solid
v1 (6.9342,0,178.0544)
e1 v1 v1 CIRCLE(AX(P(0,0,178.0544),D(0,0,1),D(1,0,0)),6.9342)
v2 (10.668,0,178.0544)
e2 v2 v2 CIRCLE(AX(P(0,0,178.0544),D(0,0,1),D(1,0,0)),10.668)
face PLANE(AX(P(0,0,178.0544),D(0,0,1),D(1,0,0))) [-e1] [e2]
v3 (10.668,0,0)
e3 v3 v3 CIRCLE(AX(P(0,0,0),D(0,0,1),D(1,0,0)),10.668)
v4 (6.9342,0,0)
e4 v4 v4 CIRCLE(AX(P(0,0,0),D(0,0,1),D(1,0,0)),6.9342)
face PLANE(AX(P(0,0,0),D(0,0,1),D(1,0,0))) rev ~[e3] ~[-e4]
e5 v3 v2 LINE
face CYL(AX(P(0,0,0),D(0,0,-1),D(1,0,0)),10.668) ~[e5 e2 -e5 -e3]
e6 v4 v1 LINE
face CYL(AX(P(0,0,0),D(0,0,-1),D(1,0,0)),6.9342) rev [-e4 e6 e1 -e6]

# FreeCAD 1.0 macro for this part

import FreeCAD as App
import Part
import Sketcher
Q = App.Units.Quantity

doc = App.newDocument("Part")
body = doc.addObject("PartDesign::Body", "Body")

sketch1 = body.newObject("Sketcher::SketchObject", "Sketch")
sketch1.AttachmentSupport = (doc.getObject("XY_Plane"), [""])
sketch1.MapMode = "FlatFace"
sketch1.addGeometry(Part.Circle(App.Vector(0, 0, 0), App.Vector(0, 0, 1), 11), False)
sketch1.addGeometry(Part.Circle(App.Vector(0, 0, 0), App.Vector(0, 0, 1), 7), False)
sketch1.addConstraint(Sketcher.Constraint("Coincident", 0, 3, -1, 1))
sketch1.addConstraint(Sketcher.Constraint("Coincident", 1, 3, -1, 1))
sketch1.addConstraint(Sketcher.Constraint("Diameter", 0, Q("0.84 in")))
sketch1.addConstraint(Sketcher.Constraint("Diameter", 1, Q("0.546 in")))
pad1 = body.newObject("PartDesign::Pad", "Pad")
pad1.Profile = sketch1
pad1.Length = 178.0544

doc.recompute()
